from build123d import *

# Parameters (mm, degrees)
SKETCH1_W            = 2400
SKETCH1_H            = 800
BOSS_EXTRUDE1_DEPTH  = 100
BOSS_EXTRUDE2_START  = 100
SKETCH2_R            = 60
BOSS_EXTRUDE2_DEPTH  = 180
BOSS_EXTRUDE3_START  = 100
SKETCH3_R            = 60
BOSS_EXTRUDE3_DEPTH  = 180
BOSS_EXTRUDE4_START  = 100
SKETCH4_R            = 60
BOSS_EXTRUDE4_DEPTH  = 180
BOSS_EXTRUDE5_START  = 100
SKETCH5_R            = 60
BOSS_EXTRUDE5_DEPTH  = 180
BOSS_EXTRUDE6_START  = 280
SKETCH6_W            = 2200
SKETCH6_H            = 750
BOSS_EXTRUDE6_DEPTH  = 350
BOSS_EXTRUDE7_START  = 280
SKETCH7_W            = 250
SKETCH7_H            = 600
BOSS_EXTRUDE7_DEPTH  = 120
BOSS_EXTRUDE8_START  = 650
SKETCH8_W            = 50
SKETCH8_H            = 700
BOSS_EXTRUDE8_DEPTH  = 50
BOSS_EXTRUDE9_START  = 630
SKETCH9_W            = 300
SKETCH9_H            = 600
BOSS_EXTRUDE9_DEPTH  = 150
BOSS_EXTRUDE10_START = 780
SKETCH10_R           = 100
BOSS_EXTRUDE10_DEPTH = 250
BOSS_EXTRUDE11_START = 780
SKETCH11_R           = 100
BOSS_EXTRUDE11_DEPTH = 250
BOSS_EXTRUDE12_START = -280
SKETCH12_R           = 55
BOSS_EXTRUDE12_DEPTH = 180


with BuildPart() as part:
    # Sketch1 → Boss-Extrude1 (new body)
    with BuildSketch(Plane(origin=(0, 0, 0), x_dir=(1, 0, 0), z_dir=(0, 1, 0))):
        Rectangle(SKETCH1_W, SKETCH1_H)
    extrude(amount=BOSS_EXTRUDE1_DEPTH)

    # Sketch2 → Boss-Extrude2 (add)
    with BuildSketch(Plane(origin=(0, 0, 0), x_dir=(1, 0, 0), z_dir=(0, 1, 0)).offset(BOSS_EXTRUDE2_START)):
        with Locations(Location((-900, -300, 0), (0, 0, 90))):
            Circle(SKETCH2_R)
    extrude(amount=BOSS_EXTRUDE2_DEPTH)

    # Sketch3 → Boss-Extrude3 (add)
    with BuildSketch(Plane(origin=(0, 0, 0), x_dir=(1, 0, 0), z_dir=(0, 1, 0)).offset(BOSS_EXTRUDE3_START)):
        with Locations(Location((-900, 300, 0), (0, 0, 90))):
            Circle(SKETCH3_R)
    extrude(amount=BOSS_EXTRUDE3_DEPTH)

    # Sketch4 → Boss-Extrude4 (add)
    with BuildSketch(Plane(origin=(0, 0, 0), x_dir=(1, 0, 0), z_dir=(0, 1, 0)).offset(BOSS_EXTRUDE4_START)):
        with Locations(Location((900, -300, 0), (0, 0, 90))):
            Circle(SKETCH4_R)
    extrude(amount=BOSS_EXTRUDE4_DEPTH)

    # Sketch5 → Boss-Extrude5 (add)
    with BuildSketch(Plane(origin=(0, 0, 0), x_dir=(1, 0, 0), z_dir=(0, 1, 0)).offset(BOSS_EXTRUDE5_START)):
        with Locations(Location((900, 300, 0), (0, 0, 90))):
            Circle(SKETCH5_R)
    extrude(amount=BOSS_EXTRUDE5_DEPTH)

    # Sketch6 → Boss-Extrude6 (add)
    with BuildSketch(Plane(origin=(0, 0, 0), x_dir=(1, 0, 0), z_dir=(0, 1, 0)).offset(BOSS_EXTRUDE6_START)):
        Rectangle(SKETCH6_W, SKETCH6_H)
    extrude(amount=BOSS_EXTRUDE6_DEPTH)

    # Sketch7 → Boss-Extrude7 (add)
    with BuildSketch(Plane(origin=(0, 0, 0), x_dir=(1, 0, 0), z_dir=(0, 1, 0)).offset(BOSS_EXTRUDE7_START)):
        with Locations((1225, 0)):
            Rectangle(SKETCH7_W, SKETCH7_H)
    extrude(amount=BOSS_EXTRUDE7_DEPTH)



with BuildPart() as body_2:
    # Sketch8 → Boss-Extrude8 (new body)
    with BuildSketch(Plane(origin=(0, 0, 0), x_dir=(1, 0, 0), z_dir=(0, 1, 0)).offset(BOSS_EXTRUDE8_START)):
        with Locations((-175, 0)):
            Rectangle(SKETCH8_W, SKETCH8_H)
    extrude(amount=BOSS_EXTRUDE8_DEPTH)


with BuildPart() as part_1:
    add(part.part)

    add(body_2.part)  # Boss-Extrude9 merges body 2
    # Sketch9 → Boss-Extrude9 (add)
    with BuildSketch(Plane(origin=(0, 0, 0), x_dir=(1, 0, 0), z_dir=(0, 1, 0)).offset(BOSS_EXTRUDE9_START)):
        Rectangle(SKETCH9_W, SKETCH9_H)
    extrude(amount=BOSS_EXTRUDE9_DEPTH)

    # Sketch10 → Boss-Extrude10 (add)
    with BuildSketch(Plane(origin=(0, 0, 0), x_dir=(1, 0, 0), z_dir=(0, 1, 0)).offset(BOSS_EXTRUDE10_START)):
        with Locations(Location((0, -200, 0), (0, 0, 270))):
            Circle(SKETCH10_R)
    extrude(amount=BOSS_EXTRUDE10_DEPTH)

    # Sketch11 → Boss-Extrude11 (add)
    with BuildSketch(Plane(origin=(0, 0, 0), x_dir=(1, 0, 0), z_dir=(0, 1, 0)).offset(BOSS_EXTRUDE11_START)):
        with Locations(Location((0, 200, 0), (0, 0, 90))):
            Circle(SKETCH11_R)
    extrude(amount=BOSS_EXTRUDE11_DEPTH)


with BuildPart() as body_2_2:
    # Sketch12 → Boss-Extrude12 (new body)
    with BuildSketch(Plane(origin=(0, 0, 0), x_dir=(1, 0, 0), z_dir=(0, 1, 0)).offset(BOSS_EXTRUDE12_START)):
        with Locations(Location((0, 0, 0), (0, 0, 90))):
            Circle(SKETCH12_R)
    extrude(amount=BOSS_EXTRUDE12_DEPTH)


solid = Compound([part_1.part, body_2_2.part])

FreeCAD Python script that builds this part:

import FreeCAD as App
import Part
import Sketcher

V = App.Vector


def add_polygon(sketch, points):
    """Adds a closed chain of lines whose ends are joined by coincident constraints."""
    first, n = sketch.GeometryCount, len(points)
    for a, b in zip(points, points[1:] + points[:1]):
        sketch.addGeometry(Part.LineSegment(App.Vector(*a, 0), App.Vector(*b, 0)), False)
    for i in range(n):
        sketch.addConstraint(Sketcher.Constraint("Coincident", first + i, 2, first + (i + 1) % n, 1))

doc = App.newDocument("Part")
body = doc.addObject("PartDesign::Body", "Body")

# Sketch on XZ plane
sketch1 = body.newObject("Sketcher::SketchObject", "Sketch")
sketch1.AttachmentSupport = (doc.getObject("XZ_Plane"), [""])
sketch1.MapMode = "FlatFace"
add_polygon(sketch1, [(-1200, -400), (-1200, 400), (1200, 400), (1200, -400)])  # lines 0-3
sketch1.addConstraint([
    Sketcher.Constraint("Vertical", 0),
    Sketcher.Constraint("Horizontal", 1),
    Sketcher.Constraint("Vertical", 2),
    Sketcher.Constraint("Horizontal", 3),
    Sketcher.Constraint("Symmetric", 0, 2, 2, 2, -1, 1),
    Sketcher.Constraint("DistanceX", 1, 1, 1, 2, 2400.0),
    Sketcher.Constraint("DistanceY", 0, 1, 0, 2, 800.0),
])
pad1 = body.newObject("PartDesign::Pad", "Pad")
pad1.Profile = sketch1
pad1.Length = 100
pad1.Reversed = True

# Sketch on XZ plane
sketch2 = body.newObject("Sketcher::SketchObject", "Sketch001")
sketch2.AttachmentSupport = (doc.getObject("XZ_Plane"), [""])
sketch2.MapMode = "FlatFace"
sketch2.AttachmentOffset = App.Placement(V(0, 0, -100), App.Rotation())
sketch2.addGeometry(Part.Circle(V(-900, 300, 0), V(0, 0, 1), 60), False)
sketch2.addConstraint([
    Sketcher.Constraint("Diameter", 0, 120.0),
    Sketcher.Constraint("DistanceX", 0, 3, -1, 1, 900.0),
    Sketcher.Constraint("DistanceY", -1, 1, 0, 3, 300.0),
])
pad2 = body.newObject("PartDesign::Pad", "Pad001")
pad2.Profile = sketch2
pad2.Length = 180
pad2.Reversed = True

# Sketch on XZ plane
sketch3 = body.newObject("Sketcher::SketchObject", "Sketch002")
sketch3.AttachmentSupport = (doc.getObject("XZ_Plane"), [""])
sketch3.MapMode = "FlatFace"
sketch3.AttachmentOffset = App.Placement(V(0, 0, -100), App.Rotation())
sketch3.addGeometry(Part.Circle(V(-900, -300, 0), V(0, 0, 1), 60), False)
sketch3.addConstraint([
    Sketcher.Constraint("Diameter", 0, 120.0),
    Sketcher.Constraint("DistanceX", 0, 3, -1, 1, 900.0),
    Sketcher.Constraint("DistanceY", 0, 3, -1, 1, 300.0),
])
pad3 = body.newObject("PartDesign::Pad", "Pad002")
pad3.Profile = sketch3
pad3.Length = 180
pad3.Reversed = True

# Sketch on XZ plane
sketch4 = body.newObject("Sketcher::SketchObject", "Sketch003")
sketch4.AttachmentSupport = (doc.getObject("XZ_Plane"), [""])
sketch4.MapMode = "FlatFace"
sketch4.AttachmentOffset = App.Placement(V(0, 0, -100), App.Rotation())
sketch4.addGeometry(Part.Circle(V(900, 300, 0), V(0, 0, 1), 60), False)
sketch4.addConstraint([
    Sketcher.Constraint("Diameter", 0, 120.0),
    Sketcher.Constraint("DistanceX", -1, 1, 0, 3, 900.0),
    Sketcher.Constraint("DistanceY", -1, 1, 0, 3, 300.0),
])
pad4 = body.newObject("PartDesign::Pad", "Pad003")
pad4.Profile = sketch4
pad4.Length = 180
pad4.Reversed = True

# Sketch on XZ plane
sketch5 = body.newObject("Sketcher::SketchObject", "Sketch004")
sketch5.AttachmentSupport = (doc.getObject("XZ_Plane"), [""])
sketch5.MapMode = "FlatFace"
sketch5.AttachmentOffset = App.Placement(V(0, 0, -100), App.Rotation())
sketch5.addGeometry(Part.Circle(V(900, -300, 0), V(0, 0, 1), 60), False)
sketch5.addConstraint([
    Sketcher.Constraint("Diameter", 0, 120.0),
    Sketcher.Constraint("DistanceX", -1, 1, 0, 3, 900.0),
    Sketcher.Constraint("DistanceY", 0, 3, -1, 1, 300.0),
])
pad5 = body.newObject("PartDesign::Pad", "Pad004")
pad5.Profile = sketch5
pad5.Length = 180
pad5.Reversed = True

# Sketch on XZ plane
sketch6 = body.newObject("Sketcher::SketchObject", "Sketch005")
sketch6.AttachmentSupport = (doc.getObject("XZ_Plane"), [""])
sketch6.MapMode = "FlatFace"
sketch6.AttachmentOffset = App.Placement(V(0, 0, -280), App.Rotation())
add_polygon(sketch6, [(-1100, -375), (-1100, 375), (1100, 375), (1100, -375)])  # lines 0-3
sketch6.addConstraint([
    Sketcher.Constraint("Vertical", 0),
    Sketcher.Constraint("Horizontal", 1),
    Sketcher.Constraint("Vertical", 2),
    Sketcher.Constraint("Horizontal", 3),
    Sketcher.Constraint("Symmetric", 0, 2, 2, 2, -1, 1),
    Sketcher.Constraint("DistanceX", 1, 1, 1, 2, 2200.0),
    Sketcher.Constraint("DistanceY", 0, 1, 0, 2, 750.0),
])
pad6 = body.newObject("PartDesign::Pad", "Pad005")
pad6.Profile = sketch6
pad6.Length = 350
pad6.Reversed = True

# Sketch on XZ plane
sketch7 = body.newObject("Sketcher::SketchObject", "Sketch006")
sketch7.AttachmentSupport = (doc.getObject("XZ_Plane"), [""])
sketch7.MapMode = "FlatFace"
sketch7.AttachmentOffset = App.Placement(V(0, 0, -280), App.Rotation())
add_polygon(sketch7, [(1100, -300), (1100, 300), (1350, 300), (1350, -300)])  # lines 0-3
sketch7.addConstraint([
    Sketcher.Constraint("Vertical", 0),
    Sketcher.Constraint("Horizontal", 1),
    Sketcher.Constraint("Vertical", 2),
    Sketcher.Constraint("Horizontal", 3),
    Sketcher.Constraint("DistanceX", 1, 1, 1, 2, 250.0),
    Sketcher.Constraint("DistanceY", 0, 1, 0, 2, 600.0),
    Sketcher.Constraint("DistanceX", -1, 1, 0, 2, 1100.0),
    Sketcher.Constraint("DistanceY", -1, 1, 0, 2, 300.0),
])
pad7 = body.newObject("PartDesign::Pad", "Pad006")
pad7.Profile = sketch7
pad7.Length = 120
pad7.Reversed = True
body2 = doc.addObject("PartDesign::Body", "Body001")

# Sketch on XZ plane
sketch8 = body2.newObject("Sketcher::SketchObject", "Sketch007")
sketch8.AttachmentSupport = (doc.getObject("XZ_Plane001"), [""])
sketch8.MapMode = "FlatFace"
sketch8.AttachmentOffset = App.Placement(V(0, 0, -650), App.Rotation())
add_polygon(sketch8, [(-200, -350), (-200, 350), (-150, 350), (-150, -350)])  # lines 0-3
sketch8.addConstraint([
    Sketcher.Constraint("Vertical", 0),
    Sketcher.Constraint("Horizontal", 1),
    Sketcher.Constraint("Vertical", 2),
    Sketcher.Constraint("Horizontal", 3),
    Sketcher.Constraint("DistanceX", 1, 1, 1, 2, 50.0),
    Sketcher.Constraint("DistanceY", 0, 1, 0, 2, 700.0),
    Sketcher.Constraint("DistanceX", 0, 2, -1, 1, 200.0),
    Sketcher.Constraint("DistanceY", -1, 1, 0, 2, 350.0),
])
pad8 = body2.newObject("PartDesign::Pad", "Pad007")
pad8.Profile = sketch8
pad8.Length = 50
pad8.Reversed = True
body.AllowCompound = True
doc.recompute()

boolean = body.newObject("PartDesign::Boolean", "Boolean")
boolean.Type = "Fuse"
boolean.addObjects([body2])

# Sketch on XZ plane
sketch9 = body.newObject("Sketcher::SketchObject", "Sketch008")
sketch9.AttachmentSupport = (doc.getObject("XZ_Plane"), [""])
sketch9.MapMode = "FlatFace"
sketch9.AttachmentOffset = App.Placement(V(0, 0, -630), App.Rotation())
add_polygon(sketch9, [(-150, -300), (-150, 300), (150, 300), (150, -300)])  # lines 0-3
sketch9.addConstraint([
    Sketcher.Constraint("Vertical", 0),
    Sketcher.Constraint("Horizontal", 1),
    Sketcher.Constraint("Vertical", 2),
    Sketcher.Constraint("Horizontal", 3),
    Sketcher.Constraint("Symmetric", 0, 2, 2, 2, -1, 1),
    Sketcher.Constraint("DistanceX", 1, 1, 1, 2, 300.0),
    Sketcher.Constraint("DistanceY", 0, 1, 0, 2, 600.0),
])
pad9 = body.newObject("PartDesign::Pad", "Pad008")
pad9.Profile = sketch9
pad9.Length = 150
pad9.Reversed = True

# Sketch on XZ plane
sketch10 = body.newObject("Sketcher::SketchObject", "Sketch009")
sketch10.AttachmentSupport = (doc.getObject("XZ_Plane"), [""])
sketch10.MapMode = "FlatFace"
sketch10.AttachmentOffset = App.Placement(V(0, 0, -780), App.Rotation())
sketch10.addGeometry(Part.Circle(V(0, 200, 0), V(0, 0, 1), 100), False)
sketch10.addConstraint([
    Sketcher.Constraint("PointOnObject", 0, 3, -2),
    Sketcher.Constraint("Diameter", 0, 200.0),
    Sketcher.Constraint("DistanceY", -1, 1, 0, 3, 200.0),
])
pad10 = body.newObject("PartDesign::Pad", "Pad009")
pad10.Profile = sketch10
pad10.Length = 250
pad10.Reversed = True

# Sketch on XZ plane
sketch11 = body.newObject("Sketcher::SketchObject", "Sketch010")
sketch11.AttachmentSupport = (doc.getObject("XZ_Plane"), [""])
sketch11.MapMode = "FlatFace"
sketch11.AttachmentOffset = App.Placement(V(0, 0, -780), App.Rotation())
sketch11.addGeometry(Part.Circle(V(0, -200, 0), V(0, 0, 1), 100), False)
sketch11.addConstraint([
    Sketcher.Constraint("PointOnObject", 0, 3, -2),
    Sketcher.Constraint("Diameter", 0, 200.0),
    Sketcher.Constraint("DistanceY", 0, 3, -1, 1, 200.0),
])
pad11 = body.newObject("PartDesign::Pad", "Pad010")
pad11.Profile = sketch11
pad11.Length = 250
pad11.Reversed = True
body3 = doc.addObject("PartDesign::Body", "Body002")

# Sketch on XZ plane
sketch12 = body3.newObject("Sketcher::SketchObject", "Sketch011")
sketch12.AttachmentSupport = (doc.getObject("XZ_Plane002"), [""])
sketch12.MapMode = "FlatFace"
sketch12.AttachmentOffset = App.Placement(V(0, 0, 280), App.Rotation())
sketch12.addGeometry(Part.Circle(V(0, 0, 0), V(0, 0, 1), 55), False)
sketch12.addConstraint([
    Sketcher.Constraint("Coincident", 0, 3, -1, 1),
    Sketcher.Constraint("Diameter", 0, 110.0),
])
pad12 = body3.newObject("PartDesign::Pad", "Pad011")
pad12.Profile = sketch12
pad12.Length = 180
pad12.Reversed = True

doc.recompute()
